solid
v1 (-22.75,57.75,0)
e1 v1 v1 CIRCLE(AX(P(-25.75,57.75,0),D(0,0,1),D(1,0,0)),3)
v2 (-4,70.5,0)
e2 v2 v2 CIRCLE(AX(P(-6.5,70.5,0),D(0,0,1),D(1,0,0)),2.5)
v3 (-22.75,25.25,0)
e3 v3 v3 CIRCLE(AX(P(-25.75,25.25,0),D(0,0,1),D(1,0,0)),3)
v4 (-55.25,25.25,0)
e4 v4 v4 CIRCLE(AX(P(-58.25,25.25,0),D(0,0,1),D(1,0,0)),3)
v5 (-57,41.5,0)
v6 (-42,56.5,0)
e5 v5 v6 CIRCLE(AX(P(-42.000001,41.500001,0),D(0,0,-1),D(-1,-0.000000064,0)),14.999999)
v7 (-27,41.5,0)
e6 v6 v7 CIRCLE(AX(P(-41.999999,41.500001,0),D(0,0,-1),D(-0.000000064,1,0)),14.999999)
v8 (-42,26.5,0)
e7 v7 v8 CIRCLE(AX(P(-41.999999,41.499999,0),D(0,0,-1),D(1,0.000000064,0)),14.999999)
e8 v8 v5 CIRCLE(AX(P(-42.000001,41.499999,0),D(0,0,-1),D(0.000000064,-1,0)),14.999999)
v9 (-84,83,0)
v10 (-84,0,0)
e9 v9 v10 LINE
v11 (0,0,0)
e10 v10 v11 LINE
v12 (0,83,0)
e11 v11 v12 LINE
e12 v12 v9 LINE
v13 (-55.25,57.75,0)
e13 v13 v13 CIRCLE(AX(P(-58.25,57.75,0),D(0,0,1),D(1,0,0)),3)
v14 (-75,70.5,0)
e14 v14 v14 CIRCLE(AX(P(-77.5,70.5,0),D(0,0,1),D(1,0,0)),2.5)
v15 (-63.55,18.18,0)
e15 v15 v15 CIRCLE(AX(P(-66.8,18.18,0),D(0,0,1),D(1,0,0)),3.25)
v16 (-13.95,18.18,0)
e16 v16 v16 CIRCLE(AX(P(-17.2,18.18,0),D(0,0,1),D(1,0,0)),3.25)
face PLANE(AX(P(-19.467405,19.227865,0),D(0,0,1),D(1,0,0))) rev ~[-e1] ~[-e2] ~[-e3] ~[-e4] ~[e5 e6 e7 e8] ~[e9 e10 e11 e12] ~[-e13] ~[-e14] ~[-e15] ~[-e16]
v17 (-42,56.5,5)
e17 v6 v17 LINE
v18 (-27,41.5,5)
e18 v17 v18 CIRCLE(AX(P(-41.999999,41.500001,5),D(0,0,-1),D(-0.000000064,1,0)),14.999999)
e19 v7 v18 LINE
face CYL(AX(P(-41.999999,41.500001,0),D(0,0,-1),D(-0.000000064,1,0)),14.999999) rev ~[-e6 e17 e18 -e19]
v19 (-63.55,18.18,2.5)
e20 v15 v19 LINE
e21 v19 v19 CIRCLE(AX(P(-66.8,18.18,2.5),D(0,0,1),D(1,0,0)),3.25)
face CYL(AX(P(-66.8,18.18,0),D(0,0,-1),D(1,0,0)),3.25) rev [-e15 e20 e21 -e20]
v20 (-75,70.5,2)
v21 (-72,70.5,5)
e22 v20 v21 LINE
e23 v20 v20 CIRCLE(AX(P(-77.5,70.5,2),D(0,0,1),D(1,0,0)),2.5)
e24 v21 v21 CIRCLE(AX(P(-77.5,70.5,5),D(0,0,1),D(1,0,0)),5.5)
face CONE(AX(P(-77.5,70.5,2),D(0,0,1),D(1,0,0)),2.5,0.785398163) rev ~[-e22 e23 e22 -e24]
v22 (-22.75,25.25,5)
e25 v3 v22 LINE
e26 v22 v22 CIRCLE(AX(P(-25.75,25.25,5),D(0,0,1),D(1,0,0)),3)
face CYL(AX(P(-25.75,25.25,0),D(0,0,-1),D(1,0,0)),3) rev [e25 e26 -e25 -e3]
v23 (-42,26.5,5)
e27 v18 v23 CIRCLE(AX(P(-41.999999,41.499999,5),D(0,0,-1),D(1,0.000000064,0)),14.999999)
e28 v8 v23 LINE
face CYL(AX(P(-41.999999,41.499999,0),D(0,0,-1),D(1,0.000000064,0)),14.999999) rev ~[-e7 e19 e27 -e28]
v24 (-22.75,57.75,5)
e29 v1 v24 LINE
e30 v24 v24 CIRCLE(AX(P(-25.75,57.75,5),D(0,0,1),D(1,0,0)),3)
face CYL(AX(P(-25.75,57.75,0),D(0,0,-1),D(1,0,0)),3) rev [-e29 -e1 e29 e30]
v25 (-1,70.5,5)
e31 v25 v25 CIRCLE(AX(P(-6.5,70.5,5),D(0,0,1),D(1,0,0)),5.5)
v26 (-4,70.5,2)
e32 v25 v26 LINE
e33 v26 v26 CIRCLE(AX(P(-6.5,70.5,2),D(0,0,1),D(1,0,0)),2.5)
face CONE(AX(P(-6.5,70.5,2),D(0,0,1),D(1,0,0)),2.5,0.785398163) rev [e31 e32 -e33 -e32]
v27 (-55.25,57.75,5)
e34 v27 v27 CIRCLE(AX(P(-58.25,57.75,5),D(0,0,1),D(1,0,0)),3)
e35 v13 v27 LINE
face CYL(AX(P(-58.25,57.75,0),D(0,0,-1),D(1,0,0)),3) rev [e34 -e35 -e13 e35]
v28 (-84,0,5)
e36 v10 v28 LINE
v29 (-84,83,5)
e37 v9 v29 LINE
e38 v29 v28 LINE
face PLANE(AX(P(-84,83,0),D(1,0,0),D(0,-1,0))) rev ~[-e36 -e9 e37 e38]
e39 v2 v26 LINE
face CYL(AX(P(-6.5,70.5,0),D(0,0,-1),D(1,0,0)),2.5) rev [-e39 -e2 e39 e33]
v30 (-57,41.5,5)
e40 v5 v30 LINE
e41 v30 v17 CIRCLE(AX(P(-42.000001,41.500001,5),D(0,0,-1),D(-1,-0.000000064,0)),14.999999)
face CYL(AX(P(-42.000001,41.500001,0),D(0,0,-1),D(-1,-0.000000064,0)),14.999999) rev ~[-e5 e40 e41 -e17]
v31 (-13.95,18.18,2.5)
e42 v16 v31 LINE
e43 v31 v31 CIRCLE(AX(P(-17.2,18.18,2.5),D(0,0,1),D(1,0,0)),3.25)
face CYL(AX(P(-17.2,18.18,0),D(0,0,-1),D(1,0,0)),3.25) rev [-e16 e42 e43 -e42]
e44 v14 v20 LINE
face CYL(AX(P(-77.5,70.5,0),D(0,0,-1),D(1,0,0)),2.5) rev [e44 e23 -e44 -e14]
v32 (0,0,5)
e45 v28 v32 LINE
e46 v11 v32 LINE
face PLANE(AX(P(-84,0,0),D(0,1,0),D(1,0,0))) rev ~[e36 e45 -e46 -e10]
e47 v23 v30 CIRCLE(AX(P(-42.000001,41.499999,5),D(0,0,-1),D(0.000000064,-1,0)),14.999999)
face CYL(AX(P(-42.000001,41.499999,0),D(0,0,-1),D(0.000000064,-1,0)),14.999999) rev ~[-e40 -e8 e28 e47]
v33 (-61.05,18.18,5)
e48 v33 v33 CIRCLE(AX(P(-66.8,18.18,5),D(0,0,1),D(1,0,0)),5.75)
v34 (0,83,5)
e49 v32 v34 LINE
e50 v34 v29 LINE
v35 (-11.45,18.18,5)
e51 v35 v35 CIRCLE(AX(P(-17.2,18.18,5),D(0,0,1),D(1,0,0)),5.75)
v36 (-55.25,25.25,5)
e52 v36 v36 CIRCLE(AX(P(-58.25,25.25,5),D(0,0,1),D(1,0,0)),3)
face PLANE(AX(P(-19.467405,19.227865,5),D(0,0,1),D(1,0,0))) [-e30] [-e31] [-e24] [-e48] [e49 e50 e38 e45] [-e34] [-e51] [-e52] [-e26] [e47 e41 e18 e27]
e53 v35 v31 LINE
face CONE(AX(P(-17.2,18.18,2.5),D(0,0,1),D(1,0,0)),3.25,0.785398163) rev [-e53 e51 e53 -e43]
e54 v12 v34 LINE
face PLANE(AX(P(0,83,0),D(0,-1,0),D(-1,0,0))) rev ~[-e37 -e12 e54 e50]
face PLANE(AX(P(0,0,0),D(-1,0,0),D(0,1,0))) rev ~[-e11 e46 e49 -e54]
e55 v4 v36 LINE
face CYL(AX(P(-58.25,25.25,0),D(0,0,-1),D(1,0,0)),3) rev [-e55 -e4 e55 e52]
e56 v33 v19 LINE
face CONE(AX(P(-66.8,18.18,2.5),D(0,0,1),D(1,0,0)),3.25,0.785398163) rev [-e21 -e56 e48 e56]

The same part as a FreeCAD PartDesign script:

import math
import FreeCAD as App
import Part
import Sketcher

V = App.Vector


def edges_at(feature, points):
    """Names of the edges that pass closest to the given points."""
    edges = feature.Shape.Edges
    near = lambda p: min(range(len(edges)), key=lambda i: edges[i].distToShape(Part.Vertex(*p))[0])
    return sorted({f"Edge{near(p) + 1}" for p in points})


def add_polygon(sketch, points):
    """Adds a closed chain of lines whose ends are joined by coincident constraints."""
    first, n = sketch.GeometryCount, len(points)
    for a, b in zip(points, points[1:] + points[:1]):
        sketch.addGeometry(Part.LineSegment(App.Vector(*a, 0), App.Vector(*b, 0)), False)
    for i in range(n):
        sketch.addConstraint(Sketcher.Constraint("Coincident", first + i, 2, first + (i + 1) % n, 1))

doc = App.newDocument("Part")
body = doc.addObject("PartDesign::Body", "Body")

sketch1 = body.newObject("Sketcher::SketchObject", "Sketch")
sketch1.AttachmentSupport = (doc.getObject("XY_Plane"), [""])
sketch1.MapMode = "FlatFace"
add_polygon(sketch1, [(0, 0), (0, 83), (-84, 83), (-84, 0)])
sketch1.addGeometry(Part.Circle(V(-66.8, 18.2, 0), V(0, 0, 1), 3.2), False)
sketch1.addGeometry(Part.Circle(V(-58.2, 25.2, 0), V(0, 0, 1), 3), False)
sketch1.addGeometry(Part.Circle(V(-25.8, 25.2, 0), V(0, 0, 1), 3), False)
sketch1.addGeometry(Part.Circle(V(-17.2, 18.2, 0), V(0, 0, 1), 3.2), False)
sketch1.addGeometry(Part.ArcOfCircle(Part.Circle(V(-42, 41.5, 0), V(0, 0, 1), 15), math.radians(0), math.radians(90)), False)
sketch1.addGeometry(Part.ArcOfCircle(Part.Circle(V(-42, 41.5, 0), V(0, 0, 1), 15), math.radians(-90), math.radians(0)), False)
sketch1.addGeometry(Part.ArcOfCircle(Part.Circle(V(-42, 41.5, 0), V(0, 0, 1), 15), math.radians(180), math.radians(270)), False)
sketch1.addGeometry(Part.ArcOfCircle(Part.Circle(V(-42, 41.5, 0), V(0, 0, 1), 15), math.radians(90), math.radians(180)), False)
sketch1.addGeometry(Part.Circle(V(-58.2, 57.8, 0), V(0, 0, 1), 3), False)
sketch1.addGeometry(Part.Circle(V(-77.5, 70.5, 0), V(0, 0, 1), 2.5), False)
sketch1.addGeometry(Part.Circle(V(-25.8, 57.8, 0), V(0, 0, 1), 3), False)
sketch1.addGeometry(Part.Circle(V(-6.5, 70.5, 0), V(0, 0, 1), 2.5), False)
sketch1.addConstraint([
    Sketcher.Constraint("Tangent", 8, 1, 9, 2),
    Sketcher.Constraint("Tangent", 9, 1, 10, 2),
    Sketcher.Constraint("Tangent", 10, 1, 11, 2),
    Sketcher.Constraint("Tangent", 11, 1, 8, 2),
    Sketcher.Constraint("Vertical", 0),
    Sketcher.Constraint("Horizontal", 1),
    Sketcher.Constraint("Vertical", 2),
    Sketcher.Constraint("Horizontal", 3),
    Sketcher.Constraint("Coincident", 3, 2, -1, 1),
    Sketcher.Constraint("Equal", 5, 6),
    Sketcher.Constraint("Equal", 4, 7),
    Sketcher.Constraint("Equal", 8, 9),
    Sketcher.Constraint("Equal", 6, 12),
    Sketcher.Constraint("Equal", 12, 14),
    Sketcher.Constraint("Equal", 13, 15),
    Sketcher.Constraint("Horizontal", 5, 3, 6, 3),
    Sketcher.Constraint("Horizontal", 4, 3, 7, 3),
    Sketcher.Constraint("Horizontal", 12, 3, 14, 3),
    Sketcher.Constraint("Horizontal", 13, 3, 15, 3),
    Sketcher.Constraint("Horizontal", 11, 3, 8, 1),
    Sketcher.Constraint("Horizontal", 8, 1, 10, 1),
    Sketcher.Constraint("Vertical", 5, 3, 12, 3),
    Sketcher.Constraint("Vertical", 6, 3, 14, 3),
    Sketcher.Constraint("Vertical", 11, 3, 9, 1),
    Sketcher.Constraint("Vertical", 9, 1, 11, 1),
    Sketcher.Constraint("Diameter", 5, 6.0),
    Sketcher.Constraint("Diameter", 13, 5.0),
    Sketcher.Constraint("Radius", 8, 14.999999),
    Sketcher.Constraint("Diameter", 4, 6.5),
    Sketcher.Constraint("DistanceX", 1, 2, 1, 1, 84.0),
    Sketcher.Constraint("DistanceY", 0, 1, 0, 2, 83.0),
    Sketcher.Constraint("DistanceX", 8, 3, -1, 1, 41.999999),
    Sketcher.Constraint("DistanceY", 11, 3, 13, 3, 28.999999),
    Sketcher.Constraint("DistanceX", 4, 3, -1, 1, 66.8),
    Sketcher.Constraint("DistanceX", 7, 3, -1, 1, 17.2),
    Sketcher.Constraint("DistanceY", -1, 1, 8, 3, 41.500001),
    Sketcher.Constraint("DistanceX", 13, 3, -1, 1, 77.5),
    Sketcher.Constraint("DistanceX", 15, 3, -1, 1, 6.5),
    Sketcher.Constraint("DistanceX", 5, 3, 6, 3, 32.5),
    Sketcher.Constraint("DistanceY", 5, 3, 12, 3, 32.5),
    Sketcher.Constraint("DistanceY", -1, 1, 4, 3, 18.18),
    Sketcher.Constraint("DistanceX", 5, 3, -1, 1, 58.25),
    Sketcher.Constraint("DistanceY", -1, 1, 5, 3, 25.25),
])
pad1 = body.newObject("PartDesign::Pad", "Pad")
pad1.Profile = sketch1
pad1.Length = 5
doc.recompute()

chamfer = body.newObject("PartDesign::Chamfer", "Chamfer")
chamfer.Base = (pad1, edges_at(pad1, [(-80, 70.5, 5)]))
chamfer.Size = 3
doc.recompute()

chamfer2 = body.newObject("PartDesign::Chamfer", "Chamfer001")
chamfer2.Base = (chamfer, edges_at(chamfer, [(-9, 70.5, 5)]))
chamfer2.Size = 3
doc.recompute()

chamfer3 = body.newObject("PartDesign::Chamfer", "Chamfer002")
chamfer3.Base = (chamfer2, edges_at(chamfer2, [(-70.05, 18.18, 5)]))
chamfer3.Size = 2.5
doc.recompute()

chamfer4 = body.newObject("PartDesign::Chamfer", "Chamfer003")
chamfer4.Base = (chamfer3, edges_at(chamfer3, [(-20.45, 18.18, 5)]))
chamfer4.Size = 2.5

doc.recompute()
